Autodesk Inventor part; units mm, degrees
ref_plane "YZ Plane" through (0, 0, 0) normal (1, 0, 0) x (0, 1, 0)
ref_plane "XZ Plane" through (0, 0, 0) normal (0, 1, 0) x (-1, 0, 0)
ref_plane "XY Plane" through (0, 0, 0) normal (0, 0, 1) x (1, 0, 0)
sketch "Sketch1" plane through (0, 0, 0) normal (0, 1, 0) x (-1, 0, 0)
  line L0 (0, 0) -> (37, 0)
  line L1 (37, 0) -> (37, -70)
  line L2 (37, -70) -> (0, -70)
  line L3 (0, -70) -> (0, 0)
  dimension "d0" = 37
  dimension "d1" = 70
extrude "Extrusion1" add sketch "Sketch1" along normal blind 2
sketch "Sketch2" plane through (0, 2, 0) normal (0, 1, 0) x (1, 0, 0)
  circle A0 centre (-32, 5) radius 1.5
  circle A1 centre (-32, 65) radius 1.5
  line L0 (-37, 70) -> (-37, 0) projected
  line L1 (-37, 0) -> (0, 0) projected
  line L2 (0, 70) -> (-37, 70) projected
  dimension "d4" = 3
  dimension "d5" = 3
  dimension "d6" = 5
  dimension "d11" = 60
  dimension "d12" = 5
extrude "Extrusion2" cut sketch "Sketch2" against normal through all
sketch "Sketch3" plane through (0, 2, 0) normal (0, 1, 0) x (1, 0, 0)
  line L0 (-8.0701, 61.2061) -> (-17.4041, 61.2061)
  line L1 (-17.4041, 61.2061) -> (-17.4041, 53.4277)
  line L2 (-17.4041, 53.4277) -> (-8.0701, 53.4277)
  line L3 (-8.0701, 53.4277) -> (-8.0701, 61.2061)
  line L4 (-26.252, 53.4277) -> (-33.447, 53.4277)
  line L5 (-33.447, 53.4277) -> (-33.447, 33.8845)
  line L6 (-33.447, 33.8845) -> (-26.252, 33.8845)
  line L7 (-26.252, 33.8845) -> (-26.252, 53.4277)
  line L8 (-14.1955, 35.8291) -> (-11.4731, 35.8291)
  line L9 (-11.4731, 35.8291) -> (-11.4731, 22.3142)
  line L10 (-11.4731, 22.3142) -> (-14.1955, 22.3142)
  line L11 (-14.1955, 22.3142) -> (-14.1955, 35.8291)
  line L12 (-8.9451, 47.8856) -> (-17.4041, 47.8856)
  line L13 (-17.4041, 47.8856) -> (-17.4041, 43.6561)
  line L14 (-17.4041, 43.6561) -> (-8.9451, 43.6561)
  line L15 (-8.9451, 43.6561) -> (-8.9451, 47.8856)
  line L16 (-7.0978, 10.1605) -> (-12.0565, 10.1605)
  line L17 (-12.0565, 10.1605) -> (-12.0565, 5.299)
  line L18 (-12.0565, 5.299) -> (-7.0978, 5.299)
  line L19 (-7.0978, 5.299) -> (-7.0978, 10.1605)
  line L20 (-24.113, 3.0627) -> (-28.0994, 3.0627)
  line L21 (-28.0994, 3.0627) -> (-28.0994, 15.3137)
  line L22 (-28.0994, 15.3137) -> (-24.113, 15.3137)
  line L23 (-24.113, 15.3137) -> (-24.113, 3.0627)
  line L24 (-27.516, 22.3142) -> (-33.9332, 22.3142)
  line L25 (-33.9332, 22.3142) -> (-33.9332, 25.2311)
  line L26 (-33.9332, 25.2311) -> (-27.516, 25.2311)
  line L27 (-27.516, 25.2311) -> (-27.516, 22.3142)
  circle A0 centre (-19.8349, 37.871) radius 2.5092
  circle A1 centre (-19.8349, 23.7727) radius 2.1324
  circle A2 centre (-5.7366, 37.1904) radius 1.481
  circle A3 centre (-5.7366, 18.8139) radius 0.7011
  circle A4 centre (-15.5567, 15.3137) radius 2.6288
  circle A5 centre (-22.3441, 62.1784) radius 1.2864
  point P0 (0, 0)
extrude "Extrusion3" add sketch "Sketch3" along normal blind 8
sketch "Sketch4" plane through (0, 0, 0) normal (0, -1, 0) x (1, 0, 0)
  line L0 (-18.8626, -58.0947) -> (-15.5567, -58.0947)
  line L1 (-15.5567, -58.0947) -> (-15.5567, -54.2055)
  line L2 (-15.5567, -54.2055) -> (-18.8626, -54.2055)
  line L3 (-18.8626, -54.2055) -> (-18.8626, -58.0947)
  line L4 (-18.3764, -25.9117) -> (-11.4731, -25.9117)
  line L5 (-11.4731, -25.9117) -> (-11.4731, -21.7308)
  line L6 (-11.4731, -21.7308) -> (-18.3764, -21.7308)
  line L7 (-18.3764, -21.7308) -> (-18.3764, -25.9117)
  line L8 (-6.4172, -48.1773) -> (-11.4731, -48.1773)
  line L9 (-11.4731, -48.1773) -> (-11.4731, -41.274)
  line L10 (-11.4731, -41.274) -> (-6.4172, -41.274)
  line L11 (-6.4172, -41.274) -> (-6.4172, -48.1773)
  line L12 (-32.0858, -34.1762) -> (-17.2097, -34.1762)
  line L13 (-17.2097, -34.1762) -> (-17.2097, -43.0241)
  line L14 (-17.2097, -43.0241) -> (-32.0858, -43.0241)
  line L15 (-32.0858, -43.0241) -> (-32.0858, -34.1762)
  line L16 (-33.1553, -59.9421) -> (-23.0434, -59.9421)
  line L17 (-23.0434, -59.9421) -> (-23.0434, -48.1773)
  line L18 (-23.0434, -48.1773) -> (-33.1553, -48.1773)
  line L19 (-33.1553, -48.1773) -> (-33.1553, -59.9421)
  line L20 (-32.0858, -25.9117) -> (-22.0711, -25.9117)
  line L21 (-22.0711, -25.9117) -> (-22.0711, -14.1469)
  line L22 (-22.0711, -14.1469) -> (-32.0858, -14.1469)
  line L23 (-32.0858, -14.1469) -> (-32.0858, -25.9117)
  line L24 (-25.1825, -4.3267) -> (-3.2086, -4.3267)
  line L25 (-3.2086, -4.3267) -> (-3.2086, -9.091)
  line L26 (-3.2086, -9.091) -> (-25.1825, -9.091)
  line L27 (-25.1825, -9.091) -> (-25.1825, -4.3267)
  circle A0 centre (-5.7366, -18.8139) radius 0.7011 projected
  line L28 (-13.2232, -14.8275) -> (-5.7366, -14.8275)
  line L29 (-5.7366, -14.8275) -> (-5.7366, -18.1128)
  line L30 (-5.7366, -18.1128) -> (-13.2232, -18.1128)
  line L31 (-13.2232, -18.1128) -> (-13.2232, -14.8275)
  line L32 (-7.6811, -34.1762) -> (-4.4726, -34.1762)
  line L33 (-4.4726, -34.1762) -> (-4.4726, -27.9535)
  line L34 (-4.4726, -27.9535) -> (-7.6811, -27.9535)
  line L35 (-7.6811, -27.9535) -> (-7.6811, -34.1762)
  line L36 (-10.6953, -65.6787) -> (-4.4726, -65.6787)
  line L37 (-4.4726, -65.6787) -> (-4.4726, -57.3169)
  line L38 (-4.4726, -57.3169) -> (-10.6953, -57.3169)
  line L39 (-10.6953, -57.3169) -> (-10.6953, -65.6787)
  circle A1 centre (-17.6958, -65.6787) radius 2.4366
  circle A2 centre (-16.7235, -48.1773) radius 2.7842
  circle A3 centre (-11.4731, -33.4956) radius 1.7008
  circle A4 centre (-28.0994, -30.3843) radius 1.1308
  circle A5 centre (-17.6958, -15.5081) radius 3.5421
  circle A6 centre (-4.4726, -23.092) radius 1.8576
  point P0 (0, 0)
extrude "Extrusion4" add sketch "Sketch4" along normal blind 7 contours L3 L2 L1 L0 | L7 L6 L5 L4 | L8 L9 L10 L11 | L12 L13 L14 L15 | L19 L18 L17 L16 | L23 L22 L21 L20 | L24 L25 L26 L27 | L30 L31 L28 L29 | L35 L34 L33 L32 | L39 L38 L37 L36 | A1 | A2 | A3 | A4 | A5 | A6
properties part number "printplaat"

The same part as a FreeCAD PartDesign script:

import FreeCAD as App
import Part
import Sketcher
Q = App.Units.Quantity


def add_polygon(sketch, points):
    """Adds a closed chain of lines whose ends are joined by coincident constraints."""
    first, n = sketch.GeometryCount, len(points)
    for a, b in zip(points, points[1:] + points[:1]):
        sketch.addGeometry(Part.LineSegment(App.Vector(*a, 0), App.Vector(*b, 0)), False)
    for i in range(n):
        sketch.addConstraint(Sketcher.Constraint("Coincident", first + i, 2, first + (i + 1) % n, 1))

doc = App.newDocument("Part")
body = doc.addObject("PartDesign::Body", "Body")

sketch1 = body.newObject("Sketcher::SketchObject", "Sketch")
sketch1.AttachmentSupport = (doc.getObject("XZ_Plane"), [""])
sketch1.MapMode = "FlatFace"
add_polygon(sketch1, [(-37, 0), (0, 0), (0, -70), (-37, -70)])
sketch1.addConstraint([
    Sketcher.Constraint("Horizontal", 0),
    Sketcher.Constraint("Vertical", 1),
    Sketcher.Constraint("Horizontal", 2),
    Sketcher.Constraint("Vertical", 3),
    Sketcher.Constraint("Coincident", 0, 2, -1, 1),
    Sketcher.Constraint("DistanceX", 0, 1, 0, 2, Q("37 mm")),
    Sketcher.Constraint("DistanceY", 1, 2, 1, 1, Q("70 mm")),
])
pad1 = body.newObject("PartDesign::Pad", "Pad")
pad1.Profile = sketch1
pad1.Length = 2
pad1.Reversed = True

sketch2 = body.newObject("Sketcher::SketchObject", "Sketch001")
sketch2.AttachmentSupport = (doc.getObject("XZ_Plane"), [""])
sketch2.MapMode = "FlatFace"
sketch2.AttachmentOffset = App.Placement(App.Vector(0, 0, -2), App.Rotation())
sketch2.addGeometry([
    Part.Circle(App.Vector(-32, -5, 0), App.Vector(0, 0, 1), 1.5),
    Part.Circle(App.Vector(-32, -65, 0), App.Vector(0, 0, 1), 1.5),
], False)
sketch2.addConstraint([
    Sketcher.Constraint("Equal", 0, 1),
    Sketcher.Constraint("Vertical", 0, 3, 1, 3),
    Sketcher.Constraint("Diameter", 0, Q("3 mm")),
    Sketcher.Constraint("DistanceY", 0, 3, -1, 1, Q("5 mm")),
    Sketcher.Constraint("DistanceY", 1, 3, 0, 3, Q("60 mm")),
    Sketcher.Constraint("DistanceX", 0, 3, -1, 1, Q("32 mm")),
])
pocket1 = body.newObject("PartDesign::Pocket", "Pocket")
pocket1.Profile = sketch2
pocket1.Type = "ThroughAll"
pocket1.Reversed = True

sketch3 = body.newObject("Sketcher::SketchObject", "Sketch002")
sketch3.AttachmentSupport = (doc.getObject("XZ_Plane"), [""])
sketch3.MapMode = "FlatFace"
sketch3.AttachmentOffset = App.Placement(App.Vector(0, 0, -2), App.Rotation())
add_polygon(sketch3, [(-8.0701, -53.4277), (-8.0701, -61.2061), (-17.4041, -61.2061), (-17.4041, -53.4277)])
add_polygon(sketch3, [(-26.252, -33.8845), (-26.252, -53.4277), (-33.447, -53.4277), (-33.447, -33.8845)])
add_polygon(sketch3, [(-11.4731, -35.8291), (-14.1955, -35.8291), (-14.1955, -22.3142), (-11.4731, -22.3142)])
add_polygon(sketch3, [(-8.9451, -43.6561), (-8.9451, -47.8856), (-17.4041, -47.8856), (-17.4041, -43.6561)])
add_polygon(sketch3, [(-7.0978, -5.299), (-7.0978, -10.1605), (-12.0565, -10.1605), (-12.0565, -5.299)])
add_polygon(sketch3, [(-28.0994, -3.0627), (-24.113, -3.0627), (-24.113, -15.3137), (-28.0994, -15.3137)])
add_polygon(sketch3, [(-33.9332, -22.3142), (-27.516, -22.3142), (-27.516, -25.2311), (-33.9332, -25.2311)])
sketch3.addGeometry(Part.Circle(App.Vector(-19.8349, -37.871, 0), App.Vector(0, 0, 1), 2.5092), False)
sketch3.addGeometry(Part.Circle(App.Vector(-19.8349, -23.7727, 0), App.Vector(0, 0, 1), 2.1324), False)
sketch3.addGeometry(Part.Circle(App.Vector(-5.7366, -37.1904, 0), App.Vector(0, 0, 1), 1.481), False)
sketch3.addGeometry(Part.Circle(App.Vector(-5.7366, -18.8139, 0), App.Vector(0, 0, 1), 0.7011), False)
sketch3.addGeometry(Part.Circle(App.Vector(-15.5567, -15.3137, 0), App.Vector(0, 0, 1), 2.6288), False)
sketch3.addGeometry(Part.Circle(App.Vector(-22.3441, -62.1784, 0), App.Vector(0, 0, 1), 1.2864), False)
sketch3.addConstraint([
    Sketcher.Constraint("Vertical", 0),
    Sketcher.Constraint("Horizontal", 1),
    Sketcher.Constraint("Vertical", 2),
    Sketcher.Constraint("Horizontal", 3),
    Sketcher.Constraint("Vertical", 4),
    Sketcher.Constraint("Horizontal", 5),
    Sketcher.Constraint("Vertical", 6),
    Sketcher.Constraint("Horizontal", 7),
    Sketcher.Constraint("Horizontal", 8),
    Sketcher.Constraint("Vertical", 9),
    Sketcher.Constraint("Horizontal", 10),
    Sketcher.Constraint("Vertical", 11),
    Sketcher.Constraint("Vertical", 12),
    Sketcher.Constraint("Horizontal", 13),
    Sketcher.Constraint("Vertical", 14),
    Sketcher.Constraint("Horizontal", 15),
    Sketcher.Constraint("Vertical", 16),
    Sketcher.Constraint("Horizontal", 17),
    Sketcher.Constraint("Vertical", 18),
    Sketcher.Constraint("Horizontal", 19),
    Sketcher.Constraint("Horizontal", 20),
    Sketcher.Constraint("Vertical", 21),
    Sketcher.Constraint("Horizontal", 22),
    Sketcher.Constraint("Vertical", 23),
    Sketcher.Constraint("Horizontal", 24),
    Sketcher.Constraint("Vertical", 25),
    Sketcher.Constraint("Horizontal", 26),
    Sketcher.Constraint("Vertical", 27),
    Sketcher.Constraint("Horizontal", 3, 2, 4, 2),
    Sketcher.Constraint("Horizontal", 32, 3, 21, 2),
    Sketcher.Constraint("Horizontal", 10, 2, 24, 2),
    Sketcher.Constraint("Vertical", 28, 3, 29, 3),
    Sketcher.Constraint("Vertical", 30, 3, 31, 3),
    Sketcher.Constraint("Vertical", 2, 2, 13, 2),
    Sketcher.Constraint("Diameter", 30, Q("2.962 mm")),
    Sketcher.Constraint("Diameter", 28, Q("5.0184 mm")),
    Sketcher.Constraint("Diameter", 29, Q("4.2648 mm")),
    Sketcher.Constraint("Diameter", 31, Q("1.4022 mm")),
    Sketcher.Constraint("Diameter", 32, Q("5.2576 mm")),
    Sketcher.Constraint("Diameter", 33, Q("2.5728 mm")),
    Sketcher.Constraint("DistanceX", 1, 2, 1, 1, Q("9.334 mm")),
    Sketcher.Constraint("DistanceX", 5, 2, 5, 1, Q("7.195 mm")),
    Sketcher.Constraint("DistanceX", 13, 2, 13, 1, Q("8.459 mm")),
    Sketcher.Constraint("DistanceY", 9, 1, 9, 2, Q("13.515 mm")),
    Sketcher.Constraint("DistanceY", 21, 2, 21, 1, Q("12.251 mm")),
    Sketcher.Constraint("DistanceY", 25, 2, 25, 1, Q("2.917 mm")),
    Sketcher.Constraint("DistanceX", 0, 2, -1, 1, Q("8.07 mm")),
    Sketcher.Constraint("DistanceX", 32, 3, 31, 3, Q("9.82 mm")),
    Sketcher.Constraint("DistanceX", 33, 3, 1, 2, Q("4.94 mm")),
    Sketcher.Constraint("DistanceX", 17, 2, 31, 3, Q("6.32 mm")),
    Sketcher.Constraint("DistanceX", 8, 2, 8, 1, Q("2.7224 mm")),
    Sketcher.Constraint("DistanceX", 17, 2, 17, 1, Q("4.9587 mm")),
    Sketcher.Constraint("DistanceX", 20, 1, 20, 2, Q("3.9864 mm")),
    Sketcher.Constraint("DistanceX", 24, 1, 24, 2, Q("6.4172 mm")),
    Sketcher.Constraint("DistanceY", 0, 2, 0, 1, Q("7.7784 mm")),
    Sketcher.Constraint("DistanceY", 4, 2, 4, 1, Q("19.5432 mm")),
    Sketcher.Constraint("DistanceY", 12, 2, 12, 1, Q("4.2295 mm")),
    Sketcher.Constraint("DistanceY", 16, 2, 16, 1, Q("4.8615 mm")),
    Sketcher.Constraint("DistanceX", 28, 3, -1, 1, Q("19.835 mm")),
    Sketcher.Constraint("DistanceY", 28, 3, -1, 1, Q("37.871 mm")),
    Sketcher.Constraint("DistanceY", 31, 3, -1, 1, Q("18.814 mm")),
    Sketcher.Constraint("DistanceY", 0, 2, -1, 1, Q("61.206 mm")),
    Sketcher.Constraint("DistanceX", 4, 2, -1, 1, Q("26.252 mm")),
    Sketcher.Constraint("DistanceY", 8, 2, -1, 1, Q("35.829 mm")),
    Sketcher.Constraint("DistanceX", 10, 2, -1, 1, Q("11.473 mm")),
    Sketcher.Constraint("DistanceY", 14, 2, -1, 1, Q("43.656 mm")),
    Sketcher.Constraint("DistanceY", 18, 2, -1, 1, Q("5.299 mm")),
    Sketcher.Constraint("DistanceX", 20, 2, -1, 1, Q("24.113 mm")),
    Sketcher.Constraint("DistanceX", 24, 2, -1, 1, Q("27.516 mm")),
    Sketcher.Constraint("DistanceY", 29, 3, 32, 3, Q("8.459 mm")),
    Sketcher.Constraint("DistanceY", 33, 3, 30, 3, Q("24.988 mm")),
    Sketcher.Constraint("DistanceY", 30, 3, 7, 2, Q("3.306 mm")),
    Sketcher.Constraint("DistanceX", 8, 2, 30, 3, Q("8.459 mm")),
    Sketcher.Constraint("DistanceY", 29, 3, -1, 1, Q("23.7727 mm")),
])
pad2 = body.newObject("PartDesign::Pad", "Pad001")
pad2.Profile = sketch3
pad2.Length = 8
pad2.Reversed = True

sketch4 = body.newObject("Sketcher::SketchObject", "Sketch003")
sketch4.AttachmentSupport = (doc.getObject("XZ_Plane"), [""])
sketch4.MapMode = "FlatFace"
add_polygon(sketch4, [(-18.8626, -54.2055), (-18.8626, -58.0947), (-15.5567, -58.0947), (-15.5567, -54.2055)])
add_polygon(sketch4, [(-18.3764, -21.7308), (-18.3764, -25.9117), (-11.4731, -25.9117), (-11.4731, -21.7308)])
add_polygon(sketch4, [(-11.4731, -48.1773), (-6.4172, -48.1773), (-6.4172, -41.274), (-11.4731, -41.274)])
add_polygon(sketch4, [(-17.2097, -34.1762), (-32.0858, -34.1762), (-32.0858, -43.0241), (-17.2097, -43.0241)])
add_polygon(sketch4, [(-33.1553, -48.1773), (-33.1553, -59.9421), (-23.0434, -59.9421), (-23.0434, -48.1773)])
add_polygon(sketch4, [(-32.0858, -14.1469), (-32.0858, -25.9117), (-22.0711, -25.9117), (-22.0711, -14.1469)])
add_polygon(sketch4, [(-3.2086, -4.3267), (-25.1825, -4.3267), (-25.1825, -9.091), (-3.2086, -9.091)])
add_polygon(sketch4, [(-13.2232, -18.1128), (-5.7366, -18.1128), (-5.7366, -14.8275), (-13.2232, -14.8275)])
add_polygon(sketch4, [(-7.6811, -27.9535), (-7.6811, -34.1762), (-4.4726, -34.1762), (-4.4726, -27.9535)])
add_polygon(sketch4, [(-10.6953, -57.3169), (-10.6953, -65.6787), (-4.4726, -65.6787), (-4.4726, -57.3169)])
sketch4.addGeometry(Part.Circle(App.Vector(-17.6958, -65.6787, 0), App.Vector(0, 0, 1), 2.4366), False)
sketch4.addGeometry(Part.Circle(App.Vector(-16.7235, -48.1773, 0), App.Vector(0, 0, 1), 2.7842), False)
sketch4.addGeometry(Part.Circle(App.Vector(-11.4731, -33.4956, 0), App.Vector(0, 0, 1), 1.7008), False)
sketch4.addGeometry(Part.Circle(App.Vector(-28.0994, -30.3843, 0), App.Vector(0, 0, 1), 1.1308), False)
sketch4.addGeometry(Part.Circle(App.Vector(-17.6958, -15.5081, 0), App.Vector(0, 0, 1), 3.5421), False)
sketch4.addGeometry(Part.Circle(App.Vector(-4.4726, -23.092, 0), App.Vector(0, 0, 1), 1.8576), False)
sketch4.addConstraint([
    Sketcher.Constraint("Vertical", 0),
    Sketcher.Constraint("Horizontal", 1),
    Sketcher.Constraint("Vertical", 2),
    Sketcher.Constraint("Horizontal", 3),
    Sketcher.Constraint("Vertical", 4),
    Sketcher.Constraint("Horizontal", 5),
    Sketcher.Constraint("Vertical", 6),
    Sketcher.Constraint("Horizontal", 7),
    Sketcher.Constraint("Horizontal", 8),
    Sketcher.Constraint("Vertical", 9),
    Sketcher.Constraint("Horizontal", 10),
    Sketcher.Constraint("Vertical", 11),
    Sketcher.Constraint("Horizontal", 12),
    Sketcher.Constraint("Vertical", 13),
    Sketcher.Constraint("Horizontal", 14),
    Sketcher.Constraint("Vertical", 15),
    Sketcher.Constraint("Vertical", 16),
    Sketcher.Constraint("Horizontal", 17),
    Sketcher.Constraint("Vertical", 18),
    Sketcher.Constraint("Horizontal", 19),
    Sketcher.Constraint("Vertical", 20),
    Sketcher.Constraint("Horizontal", 21),
    Sketcher.Constraint("Vertical", 22),
    Sketcher.Constraint("Horizontal", 23),
    Sketcher.Constraint("Horizontal", 24),
    Sketcher.Constraint("Vertical", 25),
    Sketcher.Constraint("Horizontal", 26),
    Sketcher.Constraint("Vertical", 27),
    Sketcher.Constraint("Horizontal", 28),
    Sketcher.Constraint("Vertical", 29),
    Sketcher.Constraint("Horizontal", 30),
    Sketcher.Constraint("Vertical", 31),
    Sketcher.Constraint("Vertical", 32),
    Sketcher.Constraint("Horizontal", 33),
    Sketcher.Constraint("Vertical", 34),
    Sketcher.Constraint("Horizontal", 35),
    Sketcher.Constraint("Vertical", 36),
    Sketcher.Constraint("Horizontal", 37),
    Sketcher.Constraint("Vertical", 38),
    Sketcher.Constraint("Horizontal", 39),
    Sketcher.Constraint("Horizontal", 41, 3, 8, 2),
    Sketcher.Constraint("Horizontal", 11, 2, 18, 2),
    Sketcher.Constraint("Horizontal", 5, 2, 20, 2),
    Sketcher.Constraint("Horizontal", 15, 2, 32, 2),
    Sketcher.Constraint("Horizontal", 40, 3, 36, 2),
    Sketcher.Constraint("Vertical", 40, 3, 44, 3),
    Sketcher.Constraint("Vertical", 42, 3, 5, 2),
    Sketcher.Constraint("Vertical", 6, 2, 10, 2),
    Sketcher.Constraint("Vertical", 13, 2, 20, 2),
    Sketcher.Constraint("Vertical", 45, 3, 33, 2),
    Sketcher.Constraint("Vertical", 34, 2, 37, 2),
    Sketcher.Constraint("Equal", 7, 9),
    Sketcher.Constraint("Equal", 18, 20),
    Sketcher.Constraint("Equal", 39, 32),
    Sketcher.Constraint("Diameter", 40, Q("4.8732 mm")),
    Sketcher.Constraint("Diameter", 41, Q("5.5684 mm")),
    Sketcher.Constraint("Diameter", 42, Q("3.4016 mm")),
    Sketcher.Constraint("Diameter", 43, Q("2.2616 mm")),
    Sketcher.Constraint("Diameter", 44, Q("7.0842 mm")),
    Sketcher.Constraint("Diameter", 45, Q("3.7152 mm")),
    Sketcher.Constraint("DistanceX", 1, 1, 1, 2, Q("3.306 mm")),
    Sketcher.Constraint("DistanceX", 8, 1, 8, 2, Q("5.056 mm")),
    Sketcher.Constraint("DistanceX", 12, 2, 12, 1, Q("14.876 mm")),
    Sketcher.Constraint("DistanceX", 17, 1, 17, 2, Q("10.112 mm")),
    Sketcher.Constraint("DistanceX", 24, 2, 24, 1, Q("21.974 mm")),
    Sketcher.Constraint("DistanceY", 4, 2, 4, 1, Q("4.181 mm")),
    Sketcher.Constraint("DistanceY", 13, 2, 13, 1, Q("8.848 mm")),
    Sketcher.Constraint("DistanceX", 0, 2, 45, 3, Q("14.39 mm")),
    Sketcher.Constraint("DistanceY", 2, 2, 42, 3, Q("20.71 mm")),
    Sketcher.Constraint("DistanceY", 14, 2, 10, 2, Q("1.75 mm")),
    Sketcher.Constraint("DistanceX", 18, 2, 41, 3, Q("6.32 mm")),
    Sketcher.Constraint("DistanceX", 23, 2, 44, 3, Q("14.39 mm")),
    Sketcher.Constraint("DistanceX", 30, 2, 6, 2, Q("1.75 mm")),
    Sketcher.Constraint("DistanceX", 5, 1, 5, 2, Q("6.9033 mm")),
    Sketcher.Constraint("DistanceX", 21, 1, 21, 2, Q("10.0147 mm")),
    Sketcher.Constraint("DistanceX", 28, 1, 28, 2, Q("7.4866 mm")),
    Sketcher.Constraint("DistanceX", 33, 1, 33, 2, Q("3.2085 mm")),
    Sketcher.Constraint("DistanceX", 37, 1, 37, 2, Q("6.2227 mm")),
    Sketcher.Constraint("DistanceY", 0, 2, 0, 1, Q("3.8892 mm")),
    Sketcher.Constraint("DistanceY", 16, 2, 16, 1, Q("11.7648 mm")),
    Sketcher.Constraint("DistanceY", 25, 2, 25, 1, Q("4.7643 mm")),
    Sketcher.Constraint("DistanceY", 29, 1, 29, 2, Q("3.2853 mm")),
    Sketcher.Constraint("DistanceY", 36, 2, 36, 1, Q("8.3618 mm")),
    Sketcher.Constraint("DistanceX", 42, 3, -1, 1, Q("11.473 mm")),
    Sketcher.Constraint("DistanceY", 44, 3, -1, 1, Q("15.508 mm")),
    Sketcher.Constraint("DistanceY", 45, 3, -1, 1, Q("23.092 mm")),
    Sketcher.Constraint("DistanceY", 9, 2, -1, 1, Q("41.274 mm")),
    Sketcher.Constraint("DistanceX", 21, 2, -1, 1, Q("22.071 mm")),
    Sketcher.Constraint("DistanceY", 22, 2, -1, 1, Q("14.147 mm")),
    Sketcher.Constraint("DistanceY", 25, 2, -1, 1, Q("9.091 mm")),
    Sketcher.Constraint("DistanceX", 32, 2, -1, 1, Q("7.681 mm")),
    Sketcher.Constraint("DistanceY", 38, 2, -1, 1, Q("57.317 mm")),
    Sketcher.Constraint("DistanceY", 40, 3, 42, 3, Q("32.183 mm")),
    Sketcher.Constraint("DistanceX", 43, 3, 41, 3, Q("11.376 mm")),
    Sketcher.Constraint("DistanceY", 41, 3, 43, 3, Q("17.793 mm")),
    Sketcher.Constraint("DistanceX", 41, 3, 45, 3, Q("12.251 mm")),
    Sketcher.Constraint("DistanceX", 24, 2, 7, 2, Q("6.806 mm")),
    Sketcher.Constraint("DistanceY", 6, 2, 28, 2, Q("3.618 mm")),
])
pad3 = body.newObject("PartDesign::Pad", "Pad002")
pad3.Profile = sketch4
pad3.Length = 7

doc.recompute()
